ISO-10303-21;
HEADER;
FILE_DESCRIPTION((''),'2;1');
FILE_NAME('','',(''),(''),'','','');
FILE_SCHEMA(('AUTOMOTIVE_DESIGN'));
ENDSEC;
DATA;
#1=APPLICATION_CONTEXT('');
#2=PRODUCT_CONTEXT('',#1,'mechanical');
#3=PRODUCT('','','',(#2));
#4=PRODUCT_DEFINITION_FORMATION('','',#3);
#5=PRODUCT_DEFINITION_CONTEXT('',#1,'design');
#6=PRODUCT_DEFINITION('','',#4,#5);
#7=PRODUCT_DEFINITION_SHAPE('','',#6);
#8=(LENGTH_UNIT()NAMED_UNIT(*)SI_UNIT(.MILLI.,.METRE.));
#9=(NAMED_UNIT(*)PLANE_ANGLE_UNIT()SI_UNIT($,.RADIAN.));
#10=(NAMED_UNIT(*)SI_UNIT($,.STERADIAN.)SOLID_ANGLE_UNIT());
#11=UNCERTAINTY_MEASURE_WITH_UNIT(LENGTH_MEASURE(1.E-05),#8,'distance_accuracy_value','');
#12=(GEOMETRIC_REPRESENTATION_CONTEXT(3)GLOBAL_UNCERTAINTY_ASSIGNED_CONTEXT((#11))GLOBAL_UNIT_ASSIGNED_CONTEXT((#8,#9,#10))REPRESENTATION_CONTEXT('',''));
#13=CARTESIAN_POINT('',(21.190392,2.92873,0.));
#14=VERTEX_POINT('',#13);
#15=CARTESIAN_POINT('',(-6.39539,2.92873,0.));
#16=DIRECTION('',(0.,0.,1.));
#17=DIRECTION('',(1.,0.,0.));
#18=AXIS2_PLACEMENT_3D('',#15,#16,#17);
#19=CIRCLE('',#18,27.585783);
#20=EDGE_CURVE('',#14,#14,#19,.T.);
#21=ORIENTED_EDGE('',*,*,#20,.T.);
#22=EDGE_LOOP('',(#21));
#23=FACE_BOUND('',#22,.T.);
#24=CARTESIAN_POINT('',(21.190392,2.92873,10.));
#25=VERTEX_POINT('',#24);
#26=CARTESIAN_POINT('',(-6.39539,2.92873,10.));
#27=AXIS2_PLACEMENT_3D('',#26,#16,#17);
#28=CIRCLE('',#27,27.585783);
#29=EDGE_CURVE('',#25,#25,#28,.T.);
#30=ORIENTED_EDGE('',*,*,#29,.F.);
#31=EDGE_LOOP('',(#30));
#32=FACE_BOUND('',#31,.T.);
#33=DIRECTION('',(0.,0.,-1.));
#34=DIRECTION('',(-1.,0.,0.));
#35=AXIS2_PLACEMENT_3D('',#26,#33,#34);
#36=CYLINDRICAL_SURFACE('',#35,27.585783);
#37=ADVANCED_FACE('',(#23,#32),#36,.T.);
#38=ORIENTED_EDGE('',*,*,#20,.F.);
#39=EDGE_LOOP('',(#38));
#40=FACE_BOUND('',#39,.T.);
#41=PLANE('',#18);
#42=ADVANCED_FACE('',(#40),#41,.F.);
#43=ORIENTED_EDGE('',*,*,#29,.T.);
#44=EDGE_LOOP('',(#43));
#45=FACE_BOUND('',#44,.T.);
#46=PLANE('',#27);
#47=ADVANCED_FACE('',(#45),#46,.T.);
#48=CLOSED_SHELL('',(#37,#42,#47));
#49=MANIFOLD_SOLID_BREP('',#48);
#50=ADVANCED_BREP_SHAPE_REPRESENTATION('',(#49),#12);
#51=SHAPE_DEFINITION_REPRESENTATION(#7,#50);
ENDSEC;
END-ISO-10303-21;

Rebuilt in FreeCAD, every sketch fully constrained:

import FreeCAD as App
import Part
import Sketcher
from FreeCAD import Vector

doc = App.newDocument("Part")
params = doc.addObject("Spreadsheet::Sheet", "Params")
for row, (alias, value) in enumerate([
    ("pad1_length", "10 mm"),
], start=1):
    params.set(f"A{row}", alias)
    params.set(f"B{row}", "=" + value)
    params.setAlias(f"B{row}", alias)

body = doc.addObject("PartDesign::Body", "Body")

sketch1 = body.newObject("Sketcher::SketchObject", "Sketch")
sketch1.AttachmentSupport = (doc.getObject("XY_Plane"), [""])
sketch1.MapMode = "FlatFace"
sketch1.addGeometry(Part.Circle(Vector(-6.39539, 2.92873, 0), Vector(0, 0, 1), 27.585783), False)
sketch1.addConstraint(Sketcher.Constraint("Diameter", 0, 55.171565))
sketch1.addConstraint(Sketcher.Constraint("DistanceX", 0, 3, -1, 1, 6.39539))
sketch1.addConstraint(Sketcher.Constraint("DistanceY", -1, 1, 0, 3, 2.92873))
pad1 = body.newObject("PartDesign::Pad", "Pad")
pad1.Profile = sketch1
pad1.setExpression("Length", "Params.pad1_length")

doc.recompute()
